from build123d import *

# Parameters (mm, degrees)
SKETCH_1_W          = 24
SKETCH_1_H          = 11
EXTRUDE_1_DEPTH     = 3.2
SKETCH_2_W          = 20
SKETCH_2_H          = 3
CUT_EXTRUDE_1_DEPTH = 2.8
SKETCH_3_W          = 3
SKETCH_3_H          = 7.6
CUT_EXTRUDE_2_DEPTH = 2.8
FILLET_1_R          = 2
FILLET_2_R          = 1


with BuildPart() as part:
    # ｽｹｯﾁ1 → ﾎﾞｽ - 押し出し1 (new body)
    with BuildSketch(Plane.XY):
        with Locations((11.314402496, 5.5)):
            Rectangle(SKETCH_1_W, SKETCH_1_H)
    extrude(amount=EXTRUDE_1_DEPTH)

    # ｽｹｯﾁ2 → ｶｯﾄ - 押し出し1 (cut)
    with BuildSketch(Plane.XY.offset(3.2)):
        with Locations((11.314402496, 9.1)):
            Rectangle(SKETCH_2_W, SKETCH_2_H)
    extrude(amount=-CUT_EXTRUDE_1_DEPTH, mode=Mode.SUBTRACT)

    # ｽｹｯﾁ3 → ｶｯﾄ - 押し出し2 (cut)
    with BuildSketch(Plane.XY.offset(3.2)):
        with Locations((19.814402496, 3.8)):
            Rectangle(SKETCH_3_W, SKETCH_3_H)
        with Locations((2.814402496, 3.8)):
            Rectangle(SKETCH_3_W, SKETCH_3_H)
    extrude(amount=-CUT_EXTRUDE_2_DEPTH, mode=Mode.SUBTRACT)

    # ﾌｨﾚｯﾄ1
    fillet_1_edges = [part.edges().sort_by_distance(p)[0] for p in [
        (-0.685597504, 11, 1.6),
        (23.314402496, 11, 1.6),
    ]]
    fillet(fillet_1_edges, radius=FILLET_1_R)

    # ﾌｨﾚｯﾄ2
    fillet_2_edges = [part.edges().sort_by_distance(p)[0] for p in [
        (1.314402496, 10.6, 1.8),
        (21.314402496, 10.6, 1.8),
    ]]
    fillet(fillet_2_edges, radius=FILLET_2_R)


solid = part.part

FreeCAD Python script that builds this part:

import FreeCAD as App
import Part
import Sketcher
Q = App.Units.Quantity


def edges_at(feature, points):
    """Names of the edges that pass closest to the given points."""
    edges = feature.Shape.Edges
    near = lambda p: min(range(len(edges)), key=lambda i: edges[i].distToShape(Part.Vertex(*p))[0])
    return sorted({f"Edge{near(p) + 1}" for p in points})


def add_polygon(sketch, points):
    """Adds a closed chain of lines whose ends are joined by coincident constraints."""
    first, n = sketch.GeometryCount, len(points)
    for a, b in zip(points, points[1:] + points[:1]):
        sketch.addGeometry(Part.LineSegment(App.Vector(*a, 0), App.Vector(*b, 0)), False)
    for i in range(n):
        sketch.addConstraint(Sketcher.Constraint("Coincident", first + i, 2, first + (i + 1) % n, 1))

doc = App.newDocument("Part")
params = doc.addObject("Spreadsheet::Sheet", "Params")
for row, (alias, value) in enumerate([
    ("sketch1_width", "24 mm"),
    ("sketch1_height", "11 mm"),
    ("pad1_length", "3.2 mm"),
    ("sketch2_width", "20 mm"),
    ("sketch2_height", "3 mm"),
    ("pocket1_length", "2.8 mm"),
    ("sketch3_width", "3 mm"),
    ("sketch3_height", "7.6 mm"),
    ("pocket2_length", "2.8 mm"),
    ("fillet_radius", "2 mm"),
    ("fillet2_radius", "1 mm"),
], start=1):
    params.set(f"A{row}", alias)
    params.set(f"B{row}", "=" + value)
    params.setAlias(f"B{row}", alias)

body = doc.addObject("PartDesign::Body", "Body")

sketch1 = doc.addObject("Sketcher::SketchObject", "Sketch")
body.addObject(sketch1)
sketch1.AttachmentSupport = (doc.XY_Plane, [""])
sketch1.MapMode = "FlatFace"
add_polygon(sketch1, [(-1, 11), (-1, 0), (23, 0), (23, 11)])
sketch1.addConstraint(Sketcher.Constraint("Vertical", 0))
sketch1.addConstraint(Sketcher.Constraint("Horizontal", 1))
sketch1.addConstraint(Sketcher.Constraint("Vertical", 2))
sketch1.addConstraint(Sketcher.Constraint("Horizontal", 3))
sketch1.addConstraint(Sketcher.Constraint("PointOnObject", 0, 2, -1))
sketch1.addConstraint(Sketcher.Constraint("DistanceX", 1, 1, 1, 2, Q("24 mm")))
sketch1.addConstraint(Sketcher.Constraint("DistanceY", 0, 2, 0, 1, Q("11 mm")))
sketch1.addConstraint(Sketcher.Constraint("DistanceX", 0, 2, -1, 1, Q("0.685598 mm")))
sketch1.setExpression("Constraints[9]", "Params.sketch1_width")
sketch1.setExpression("Constraints[10]", "Params.sketch1_height")
pad1 = doc.addObject("PartDesign::Pad", "Pad")
body.addObject(pad1)
pad1.Profile = sketch1
pad1.setExpression("Length", "Params.pad1_length")

sketch2 = doc.addObject("Sketcher::SketchObject", "Sketch001")
body.addObject(sketch2)
sketch2.AttachmentSupport = (doc.XY_Plane, [""])
sketch2.MapMode = "FlatFace"
sketch2.AttachmentOffset = App.Placement(App.Vector(0, 0, 3.2), App.Rotation())
add_polygon(sketch2, [(1.3, 10.6), (1.3, 7.6), (21.3, 7.6), (21.3, 10.6)])
sketch2.addConstraint(Sketcher.Constraint("Vertical", 0))
sketch2.addConstraint(Sketcher.Constraint("Horizontal", 1))
sketch2.addConstraint(Sketcher.Constraint("Vertical", 2))
sketch2.addConstraint(Sketcher.Constraint("Horizontal", 3))
sketch2.addConstraint(Sketcher.Constraint("DistanceX", 1, 1, 1, 2, Q("20 mm")))
sketch2.addConstraint(Sketcher.Constraint("DistanceY", 0, 2, 0, 1, Q("3 mm")))
sketch2.addConstraint(Sketcher.Constraint("DistanceY", -1, 1, 0, 2, Q("7.6 mm")))
sketch2.addConstraint(Sketcher.Constraint("DistanceX", -1, 1, 0, 2, Q("1.314402 mm")))
sketch2.setExpression("Constraints[8]", "Params.sketch2_width")
sketch2.setExpression("Constraints[9]", "Params.sketch2_height")
pocket1 = doc.addObject("PartDesign::Pocket", "Pocket")
body.addObject(pocket1)
pocket1.Profile = sketch2
pocket1.setExpression("Length", "Params.pocket1_length")

sketch3 = doc.addObject("Sketcher::SketchObject", "Sketch002")
body.addObject(sketch3)
sketch3.AttachmentSupport = (doc.XY_Plane, [""])
sketch3.MapMode = "FlatFace"
sketch3.AttachmentOffset = App.Placement(App.Vector(0, 0, 3.2), App.Rotation())
add_polygon(sketch3, [(18.3, 7.6), (18.3, 0), (21.3, 0), (21.3, 7.6)])
add_polygon(sketch3, [(1.3, 7.6), (1.3, 0), (4.3, 0), (4.3, 7.6)])
sketch3.addConstraint(Sketcher.Constraint("Vertical", 0))
sketch3.addConstraint(Sketcher.Constraint("Horizontal", 1))
sketch3.addConstraint(Sketcher.Constraint("Vertical", 2))
sketch3.addConstraint(Sketcher.Constraint("Horizontal", 3))
sketch3.addConstraint(Sketcher.Constraint("Vertical", 4))
sketch3.addConstraint(Sketcher.Constraint("Horizontal", 5))
sketch3.addConstraint(Sketcher.Constraint("Vertical", 6))
sketch3.addConstraint(Sketcher.Constraint("Horizontal", 7))
sketch3.addConstraint(Sketcher.Constraint("PointOnObject", 0, 2, -1))
sketch3.addConstraint(Sketcher.Constraint("PointOnObject", 4, 2, -1))
sketch3.addConstraint(Sketcher.Constraint("Horizontal", 3, 2, 6, 2))
sketch3.addConstraint(Sketcher.Constraint("Equal", 3, 5))
sketch3.addConstraint(Sketcher.Constraint("DistanceX", 1, 1, 1, 2, Q("3 mm")))
sketch3.addConstraint(Sketcher.Constraint("DistanceY", 0, 2, 0, 1, Q("7.6 mm")))
sketch3.addConstraint(Sketcher.Constraint("DistanceX", 4, 2, 0, 2, Q("17 mm")))
sketch3.addConstraint(Sketcher.Constraint("DistanceX", -1, 1, 0, 2, Q("18.314402 mm")))
sketch3.setExpression("Constraints[20]", "Params.sketch3_width")
sketch3.setExpression("Constraints[21]", "Params.sketch3_height")
pocket2 = doc.addObject("PartDesign::Pocket", "Pocket001")
body.addObject(pocket2)
pocket2.Profile = sketch3
pocket2.setExpression("Length", "Params.pocket2_length")
doc.recompute()

fillet = doc.addObject("PartDesign::Fillet", "Fillet")
body.addObject(fillet)
fillet.Base = (pocket2, edges_at(pocket2, [(-0.686, 11, 1.6), (23.314, 11, 1.6)]))
fillet.setExpression("Radius", "Params.fillet_radius")
doc.recompute()

fillet2 = doc.addObject("PartDesign::Fillet", "Fillet001")
body.addObject(fillet2)
fillet2.Base = (fillet, edges_at(fillet, [(1.314, 10.6, 1.8), (21.314, 10.6, 1.8)]))
fillet2.setExpression("Radius", "Params.fillet2_radius")

doc.recompute()
